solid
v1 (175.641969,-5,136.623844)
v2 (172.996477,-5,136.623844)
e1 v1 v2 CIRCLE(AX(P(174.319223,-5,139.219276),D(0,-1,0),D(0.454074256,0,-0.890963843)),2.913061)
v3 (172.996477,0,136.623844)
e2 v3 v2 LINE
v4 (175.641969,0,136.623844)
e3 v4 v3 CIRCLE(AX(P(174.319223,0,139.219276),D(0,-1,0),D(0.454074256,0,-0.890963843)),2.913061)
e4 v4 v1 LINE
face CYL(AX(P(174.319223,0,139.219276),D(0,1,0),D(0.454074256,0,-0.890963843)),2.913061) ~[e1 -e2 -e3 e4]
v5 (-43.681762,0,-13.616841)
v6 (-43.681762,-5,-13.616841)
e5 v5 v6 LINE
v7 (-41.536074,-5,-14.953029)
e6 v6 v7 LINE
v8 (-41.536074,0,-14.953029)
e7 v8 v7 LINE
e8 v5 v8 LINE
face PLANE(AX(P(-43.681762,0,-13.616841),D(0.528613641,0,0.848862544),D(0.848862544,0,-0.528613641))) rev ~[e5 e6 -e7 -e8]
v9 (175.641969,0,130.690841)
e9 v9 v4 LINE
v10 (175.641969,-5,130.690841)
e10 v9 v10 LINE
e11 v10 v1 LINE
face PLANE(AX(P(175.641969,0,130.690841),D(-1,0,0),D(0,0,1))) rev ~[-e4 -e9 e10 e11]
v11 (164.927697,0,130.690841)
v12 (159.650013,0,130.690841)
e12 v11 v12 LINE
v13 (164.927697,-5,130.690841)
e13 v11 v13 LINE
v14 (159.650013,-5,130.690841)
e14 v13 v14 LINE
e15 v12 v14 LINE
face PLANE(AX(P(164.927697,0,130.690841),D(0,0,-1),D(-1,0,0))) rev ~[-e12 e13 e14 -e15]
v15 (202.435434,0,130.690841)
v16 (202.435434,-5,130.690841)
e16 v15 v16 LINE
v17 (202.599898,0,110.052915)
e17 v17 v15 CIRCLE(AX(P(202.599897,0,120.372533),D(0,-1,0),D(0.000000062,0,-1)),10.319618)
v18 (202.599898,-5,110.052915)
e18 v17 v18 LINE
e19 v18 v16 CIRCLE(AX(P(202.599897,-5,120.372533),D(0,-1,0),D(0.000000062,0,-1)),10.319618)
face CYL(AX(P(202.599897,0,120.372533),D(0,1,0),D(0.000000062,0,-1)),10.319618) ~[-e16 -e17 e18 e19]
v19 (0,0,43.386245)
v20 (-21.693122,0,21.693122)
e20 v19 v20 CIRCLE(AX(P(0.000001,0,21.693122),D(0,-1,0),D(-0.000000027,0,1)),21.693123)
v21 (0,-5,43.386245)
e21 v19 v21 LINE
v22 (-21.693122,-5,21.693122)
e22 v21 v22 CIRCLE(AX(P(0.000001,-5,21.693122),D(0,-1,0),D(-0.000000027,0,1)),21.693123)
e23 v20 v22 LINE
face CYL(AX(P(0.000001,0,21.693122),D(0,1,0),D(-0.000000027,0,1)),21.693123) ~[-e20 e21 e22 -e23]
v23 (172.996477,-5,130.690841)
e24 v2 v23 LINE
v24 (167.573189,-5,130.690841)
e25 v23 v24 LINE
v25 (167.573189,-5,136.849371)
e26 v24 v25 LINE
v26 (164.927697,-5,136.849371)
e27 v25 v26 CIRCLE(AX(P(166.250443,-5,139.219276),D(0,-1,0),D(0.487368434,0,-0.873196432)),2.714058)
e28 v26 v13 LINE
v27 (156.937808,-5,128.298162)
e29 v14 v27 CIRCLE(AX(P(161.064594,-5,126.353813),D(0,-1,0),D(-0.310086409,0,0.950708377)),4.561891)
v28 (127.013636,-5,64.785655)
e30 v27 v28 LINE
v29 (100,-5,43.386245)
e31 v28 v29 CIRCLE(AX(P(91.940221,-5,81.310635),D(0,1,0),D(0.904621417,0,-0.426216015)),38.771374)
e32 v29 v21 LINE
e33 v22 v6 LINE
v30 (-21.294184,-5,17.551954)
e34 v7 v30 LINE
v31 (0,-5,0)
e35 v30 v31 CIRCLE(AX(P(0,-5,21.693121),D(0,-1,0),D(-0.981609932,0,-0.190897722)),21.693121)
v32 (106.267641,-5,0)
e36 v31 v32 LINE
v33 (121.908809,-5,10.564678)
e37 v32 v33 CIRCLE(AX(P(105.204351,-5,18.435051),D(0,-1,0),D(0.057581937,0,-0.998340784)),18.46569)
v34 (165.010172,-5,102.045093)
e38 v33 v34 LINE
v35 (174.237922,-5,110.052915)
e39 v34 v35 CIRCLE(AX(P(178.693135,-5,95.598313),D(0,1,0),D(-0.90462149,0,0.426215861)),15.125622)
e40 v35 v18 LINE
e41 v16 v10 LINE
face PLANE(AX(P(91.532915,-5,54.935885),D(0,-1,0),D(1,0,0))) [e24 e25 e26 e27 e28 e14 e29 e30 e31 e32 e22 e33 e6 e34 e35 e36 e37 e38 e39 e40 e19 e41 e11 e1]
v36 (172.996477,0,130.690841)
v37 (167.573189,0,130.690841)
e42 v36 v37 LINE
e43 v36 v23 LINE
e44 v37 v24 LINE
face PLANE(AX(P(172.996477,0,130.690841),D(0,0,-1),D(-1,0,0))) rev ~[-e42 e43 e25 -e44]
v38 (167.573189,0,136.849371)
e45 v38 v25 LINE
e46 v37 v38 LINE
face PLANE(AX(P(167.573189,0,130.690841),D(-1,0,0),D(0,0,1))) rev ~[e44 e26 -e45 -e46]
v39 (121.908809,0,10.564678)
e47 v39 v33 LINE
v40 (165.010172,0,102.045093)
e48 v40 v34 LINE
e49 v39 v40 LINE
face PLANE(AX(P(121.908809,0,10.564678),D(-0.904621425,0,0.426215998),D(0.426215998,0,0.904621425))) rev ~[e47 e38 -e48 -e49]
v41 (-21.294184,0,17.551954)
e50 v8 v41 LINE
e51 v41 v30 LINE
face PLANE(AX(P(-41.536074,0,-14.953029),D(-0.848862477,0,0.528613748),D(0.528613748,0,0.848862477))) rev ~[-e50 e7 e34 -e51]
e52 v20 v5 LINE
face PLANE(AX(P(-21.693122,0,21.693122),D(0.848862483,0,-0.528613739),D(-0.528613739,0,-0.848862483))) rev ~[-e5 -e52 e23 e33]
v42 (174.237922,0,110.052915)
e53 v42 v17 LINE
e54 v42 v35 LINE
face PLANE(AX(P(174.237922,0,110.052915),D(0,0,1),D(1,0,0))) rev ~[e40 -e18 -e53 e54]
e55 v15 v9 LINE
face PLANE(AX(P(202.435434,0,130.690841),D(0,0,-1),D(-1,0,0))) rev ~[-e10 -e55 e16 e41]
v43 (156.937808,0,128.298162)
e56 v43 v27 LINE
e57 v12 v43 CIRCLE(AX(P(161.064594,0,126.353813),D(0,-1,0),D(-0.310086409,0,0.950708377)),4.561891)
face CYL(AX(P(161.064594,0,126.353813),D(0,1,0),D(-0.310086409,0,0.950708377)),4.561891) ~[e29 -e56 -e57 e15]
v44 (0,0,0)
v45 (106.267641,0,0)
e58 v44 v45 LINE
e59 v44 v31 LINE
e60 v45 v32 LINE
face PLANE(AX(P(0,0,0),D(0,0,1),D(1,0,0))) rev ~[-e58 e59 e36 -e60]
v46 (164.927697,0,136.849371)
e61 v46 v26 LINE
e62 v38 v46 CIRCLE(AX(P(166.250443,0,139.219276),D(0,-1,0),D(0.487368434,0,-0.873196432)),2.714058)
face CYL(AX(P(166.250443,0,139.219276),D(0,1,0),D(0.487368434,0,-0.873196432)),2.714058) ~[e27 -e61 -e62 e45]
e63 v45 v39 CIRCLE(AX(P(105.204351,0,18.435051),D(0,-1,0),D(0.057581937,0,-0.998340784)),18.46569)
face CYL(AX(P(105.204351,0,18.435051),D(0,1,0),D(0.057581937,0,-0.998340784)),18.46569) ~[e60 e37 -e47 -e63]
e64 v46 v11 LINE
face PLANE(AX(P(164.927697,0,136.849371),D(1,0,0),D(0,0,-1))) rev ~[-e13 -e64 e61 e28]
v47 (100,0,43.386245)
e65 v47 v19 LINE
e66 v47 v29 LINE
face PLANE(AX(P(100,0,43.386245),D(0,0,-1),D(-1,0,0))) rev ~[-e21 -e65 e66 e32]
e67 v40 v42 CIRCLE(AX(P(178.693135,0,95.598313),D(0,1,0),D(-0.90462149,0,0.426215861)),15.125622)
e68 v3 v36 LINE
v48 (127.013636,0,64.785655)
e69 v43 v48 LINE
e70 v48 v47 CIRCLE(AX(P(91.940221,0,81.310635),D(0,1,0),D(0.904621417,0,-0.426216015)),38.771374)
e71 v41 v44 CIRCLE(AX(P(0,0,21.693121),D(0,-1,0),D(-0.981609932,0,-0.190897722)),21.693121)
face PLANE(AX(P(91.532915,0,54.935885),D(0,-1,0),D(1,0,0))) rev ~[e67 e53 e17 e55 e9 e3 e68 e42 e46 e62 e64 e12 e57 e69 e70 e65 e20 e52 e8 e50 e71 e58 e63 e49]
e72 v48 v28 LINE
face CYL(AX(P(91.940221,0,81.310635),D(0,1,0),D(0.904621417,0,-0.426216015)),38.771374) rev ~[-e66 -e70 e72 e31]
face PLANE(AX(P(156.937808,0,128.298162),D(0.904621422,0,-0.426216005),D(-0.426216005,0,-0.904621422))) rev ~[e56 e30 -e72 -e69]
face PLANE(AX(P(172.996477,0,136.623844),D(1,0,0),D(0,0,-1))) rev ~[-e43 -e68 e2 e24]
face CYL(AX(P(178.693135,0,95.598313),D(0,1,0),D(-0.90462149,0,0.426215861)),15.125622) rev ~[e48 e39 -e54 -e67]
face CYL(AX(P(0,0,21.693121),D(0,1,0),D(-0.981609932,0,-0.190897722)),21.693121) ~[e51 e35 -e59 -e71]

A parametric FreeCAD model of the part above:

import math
import FreeCAD as App
import Part
import Sketcher
Q = App.Units.Quantity

doc = App.newDocument("Part")
body = doc.addObject("PartDesign::Body", "Body")

# Sketch on XZ plane
sketch1 = doc.addObject("Sketcher::SketchObject", "Sketch")
body.addObject(sketch1)
sketch1.AttachmentSupport = (doc.XZ_Plane, [""])
sketch1.MapMode = "FlatFace"
sketch1.addGeometry(Part.ArcOfCircle(Part.Circle(App.Vector(0, 21.693121, 0), App.Vector(0, 0, 1), 21.693121), math.radians(-168.994821), math.radians(-89.999999)), False)
sketch1.addGeometry(Part.LineSegment(App.Vector(0, 0, 0), App.Vector(106.267641, 0, 0)), False)
sketch1.addGeometry(Part.ArcOfCircle(Part.Circle(App.Vector(105.204351, 18.435051, 0), App.Vector(0, 0, 1), 18.46569), math.radians(-86.698972), math.radians(-25.227659)), False)
sketch1.addGeometry(Part.LineSegment(App.Vector(121.908809, 10.564678, 0), App.Vector(165.010172, 102.045093, 0)), False)
sketch1.addGeometry(Part.ArcOfCircle(Part.Circle(App.Vector(178.693135, 95.598313, 0), App.Vector(0, 0, 1), 15.125622), math.radians(107.130399), math.radians(154.772352)), False)
sketch1.addGeometry(Part.LineSegment(App.Vector(174.237922, 110.052915, 0), App.Vector(202.599898, 110.052915, 0)), False)
sketch1.addGeometry(Part.ArcOfCircle(Part.Circle(App.Vector(202.599897, 120.372533, 0), App.Vector(0, 0, 1), 10.319618), math.radians(-89.999996), math.radians(90.913159)), False)
sketch1.addGeometry(Part.LineSegment(App.Vector(202.435434, 130.690841, 0), App.Vector(175.641969, 130.690841, 0)), False)
sketch1.addGeometry(Part.LineSegment(App.Vector(175.641969, 130.690841, 0), App.Vector(175.641969, 136.623844, 0)), False)
sketch1.addGeometry(Part.ArcOfCircle(Part.Circle(App.Vector(174.319223, 139.219276, 0), App.Vector(0, 0, 1), 2.913061), math.radians(-62.994614), math.radians(242.994614)), False)
sketch1.addGeometry(Part.LineSegment(App.Vector(172.996477, 136.623844, 0), App.Vector(172.996477, 130.690841, 0)), False)
sketch1.addGeometry(Part.LineSegment(App.Vector(172.996477, 130.690841, 0), App.Vector(167.573189, 130.690841, 0)), False)
sketch1.addGeometry(Part.LineSegment(App.Vector(167.573189, 130.690841, 0), App.Vector(167.573189, 136.849371, 0)), False)
sketch1.addGeometry(Part.ArcOfCircle(Part.Circle(App.Vector(166.250443, 139.219276, 0), App.Vector(0, 0, 1), 2.714058), math.radians(-60.832237), math.radians(240.832237)), False)
sketch1.addGeometry(Part.LineSegment(App.Vector(164.927697, 136.849371, 0), App.Vector(164.927697, 130.690841, 0)), False)
sketch1.addGeometry(Part.LineSegment(App.Vector(164.927697, 130.690841, 0), App.Vector(159.650013, 130.690841, 0)), False)
sketch1.addGeometry(Part.ArcOfCircle(Part.Circle(App.Vector(161.064594, 126.353813, 0), App.Vector(0, 0, 1), 4.561891), math.radians(108.064438), math.radians(154.772367)), False)
sketch1.addGeometry(Part.LineSegment(App.Vector(156.937808, 128.298162, 0), App.Vector(127.013636, 64.785655, 0)), False)
sketch1.addGeometry(Part.ArcOfCircle(Part.Circle(App.Vector(91.940221, 81.310635, 0), App.Vector(0, 0, 1), 38.771374), math.radians(-78.001877), math.radians(-25.227657)), False)
sketch1.addGeometry(Part.LineSegment(App.Vector(100, 43.386245, 0), App.Vector(0, 43.386245, 0)), False)
sketch1.addGeometry(Part.ArcOfCircle(Part.Circle(App.Vector(0.000001, 21.693122, 0), App.Vector(0, 0, 1), 21.693123), math.radians(90.000002), math.radians(180.000001)), False)
sketch1.addGeometry(Part.LineSegment(App.Vector(-21.693122, 21.693122, 0), App.Vector(-43.681762, -13.616841, 0)), False)
sketch1.addGeometry(Part.LineSegment(App.Vector(-43.681762, -13.616841, 0), App.Vector(-41.536074, -14.953029, 0)), False)
sketch1.addGeometry(Part.LineSegment(App.Vector(-41.536074, -14.953029, 0), App.Vector(-21.294184, 17.551954, 0)), False)
sketch1.addConstraint(Sketcher.Constraint("Tangent", 0, 2, 1, 1))
sketch1.addConstraint(Sketcher.Constraint("Coincident", 1, 2, 2, 1))
sketch1.addConstraint(Sketcher.Constraint("Tangent", 2, 2, 3, 1))
sketch1.addConstraint(Sketcher.Constraint("Tangent", 3, 2, 4, 2))
sketch1.addConstraint(Sketcher.Constraint("Coincident", 4, 1, 5, 1))
sketch1.addConstraint(Sketcher.Constraint("Tangent", 5, 2, 6, 1))
sketch1.addConstraint(Sketcher.Constraint("Coincident", 6, 2, 7, 1))
sketch1.addConstraint(Sketcher.Constraint("Coincident", 7, 2, 8, 1))
sketch1.addConstraint(Sketcher.Constraint("Coincident", 8, 2, 9, 1))
sketch1.addConstraint(Sketcher.Constraint("Coincident", 9, 2, 10, 1))
sketch1.addConstraint(Sketcher.Constraint("Coincident", 10, 2, 11, 1))
sketch1.addConstraint(Sketcher.Constraint("Coincident", 11, 2, 12, 1))
sketch1.addConstraint(Sketcher.Constraint("Coincident", 12, 2, 13, 1))
sketch1.addConstraint(Sketcher.Constraint("Coincident", 13, 2, 14, 1))
sketch1.addConstraint(Sketcher.Constraint("Coincident", 14, 2, 15, 1))
sketch1.addConstraint(Sketcher.Constraint("Coincident", 15, 2, 16, 1))
sketch1.addConstraint(Sketcher.Constraint("Tangent", 16, 2, 17, 1))
sketch1.addConstraint(Sketcher.Constraint("Tangent", 17, 2, 18, 2))
sketch1.addConstraint(Sketcher.Constraint("Coincident", 18, 1, 19, 1))
sketch1.addConstraint(Sketcher.Constraint("Tangent", 19, 2, 20, 1))
sketch1.addConstraint(Sketcher.Constraint("Coincident", 20, 2, 21, 1))
sketch1.addConstraint(Sketcher.Constraint("Coincident", 21, 2, 22, 1))
sketch1.addConstraint(Sketcher.Constraint("Coincident", 22, 2, 23, 1))
sketch1.addConstraint(Sketcher.Constraint("Coincident", 23, 2, 0, 1))
sketch1.addConstraint(Sketcher.Constraint("Horizontal", 1))
sketch1.addConstraint(Sketcher.Constraint("Horizontal", 5))
sketch1.addConstraint(Sketcher.Constraint("Horizontal", 7))
sketch1.addConstraint(Sketcher.Constraint("Vertical", 8))
sketch1.addConstraint(Sketcher.Constraint("Vertical", 10))
sketch1.addConstraint(Sketcher.Constraint("Horizontal", 11))
sketch1.addConstraint(Sketcher.Constraint("Vertical", 12))
sketch1.addConstraint(Sketcher.Constraint("Vertical", 14))
sketch1.addConstraint(Sketcher.Constraint("Horizontal", 15))
sketch1.addConstraint(Sketcher.Constraint("Horizontal", 19))
sketch1.addConstraint(Sketcher.Constraint("Coincident", 0, 2, -1, 1))
sketch1.addConstraint(Sketcher.Constraint("Coincident", 20, 3, 0, 3))
sketch1.addConstraint(Sketcher.Constraint("Equal", 0, 20))
sketch1.addConstraint(Sketcher.Constraint("Parallel", 3, 17))
sketch1.addConstraint(Sketcher.Constraint("Perpendicular", 21, 22))
sketch1.addConstraint(Sketcher.Constraint("Perpendicular", 22, 23))
sketch1.addConstraint(Sketcher.Constraint("Horizontal", 9, 3, 13, 3))
sketch1.addConstraint(Sketcher.Constraint("Horizontal", 8, 2, 9, 2))
sketch1.addConstraint(Sketcher.Constraint("Horizontal", 7, 2, 10, 2))
sketch1.addConstraint(Sketcher.Constraint("Horizontal", 12, 2, 13, 2))
sketch1.addConstraint(Sketcher.Constraint("Horizontal", 11, 2, 14, 2))
sketch1.addConstraint(Sketcher.Constraint("Horizontal", 0, 3, 20, 2))
sketch1.addConstraint(Sketcher.Constraint("DistanceX", 19, 2, 19, 1, Q("100 mm")))
sketch1.addConstraint(Sketcher.Constraint("Radius", 0, Q("21.693121 mm")))
sketch1.addConstraint(Sketcher.Constraint("Radius", 2, Q("18.46569 mm")))
sketch1.addConstraint(Sketcher.Constraint("Radius", 4, Q("15.125622 mm")))
sketch1.addConstraint(Sketcher.Constraint("Radius", 6, Q("10.319618 mm")))
sketch1.addConstraint(Sketcher.Constraint("Radius", 9, Q("2.913061 mm")))
sketch1.addConstraint(Sketcher.Constraint("Radius", 16, Q("4.561891 mm")))
sketch1.addConstraint(Sketcher.Constraint("Radius", 13, Q("2.714058 mm")))
sketch1.addConstraint(Sketcher.Constraint("Radius", 18, Q("38.771374 mm")))
sketch1.addConstraint(Sketcher.Constraint("Distance", 21, Q("41.5968 mm")))
sketch1.addConstraint(Sketcher.Constraint("Distance", 23, Q("38.292402 mm")))
sketch1.addConstraint(Sketcher.Constraint("DistanceX", 1, 1, 1, 2, Q("106.267641 mm")))
sketch1.addConstraint(Sketcher.Constraint("DistanceY", 12, 1, 12, 2, Q("6.15853 mm")))
sketch1.addConstraint(Sketcher.Constraint("DistanceX", -1, 1, 5, 2, Q("202.599898 mm")))
sketch1.addConstraint(Sketcher.Constraint("DistanceY", 4, 3, 16, 3, Q("30.7555 mm")))
sketch1.addConstraint(Sketcher.Constraint("DistanceY", 4, 3, 4, 1, Q("14.454602 mm")))
sketch1.addConstraint(Sketcher.Constraint("DistanceX", 4, 1, 9, 3, Q("0.081301 mm")))
sketch1.addConstraint(Sketcher.Constraint("DistanceX", 17, 2, 4, 3, Q("51.679499 mm")))
sketch1.addConstraint(Sketcher.Constraint("Distance", 22, Q("2.527721 mm")))
sketch1.addConstraint(Sketcher.Constraint("DistanceX", 5, 1, 5, 2, Q("28.361976 mm")))
sketch1.addConstraint(Sketcher.Constraint("DistanceX", 7, 2, 7, 1, Q("26.793465 mm")))
sketch1.addConstraint(Sketcher.Constraint("DistanceX", 11, 2, 11, 1, Q("5.423288 mm")))
sketch1.addConstraint(Sketcher.Constraint("DistanceX", 15, 2, 15, 1, Q("5.277684 mm")))
sketch1.addConstraint(Sketcher.Constraint("DistanceY", 8, 1, 8, 2, Q("5.933003 mm")))
sketch1.addConstraint(Sketcher.Constraint("DistanceX", -1, 1, 2, 3, Q("105.204351 mm")))
sketch1.addConstraint(Sketcher.Constraint("DistanceX", -1, 1, 18, 3, Q("91.940221 mm")))
pad1 = doc.addObject("PartDesign::Pad", "Pad")
body.addObject(pad1)
pad1.Profile = sketch1
pad1.Length = 5

doc.recompute()
